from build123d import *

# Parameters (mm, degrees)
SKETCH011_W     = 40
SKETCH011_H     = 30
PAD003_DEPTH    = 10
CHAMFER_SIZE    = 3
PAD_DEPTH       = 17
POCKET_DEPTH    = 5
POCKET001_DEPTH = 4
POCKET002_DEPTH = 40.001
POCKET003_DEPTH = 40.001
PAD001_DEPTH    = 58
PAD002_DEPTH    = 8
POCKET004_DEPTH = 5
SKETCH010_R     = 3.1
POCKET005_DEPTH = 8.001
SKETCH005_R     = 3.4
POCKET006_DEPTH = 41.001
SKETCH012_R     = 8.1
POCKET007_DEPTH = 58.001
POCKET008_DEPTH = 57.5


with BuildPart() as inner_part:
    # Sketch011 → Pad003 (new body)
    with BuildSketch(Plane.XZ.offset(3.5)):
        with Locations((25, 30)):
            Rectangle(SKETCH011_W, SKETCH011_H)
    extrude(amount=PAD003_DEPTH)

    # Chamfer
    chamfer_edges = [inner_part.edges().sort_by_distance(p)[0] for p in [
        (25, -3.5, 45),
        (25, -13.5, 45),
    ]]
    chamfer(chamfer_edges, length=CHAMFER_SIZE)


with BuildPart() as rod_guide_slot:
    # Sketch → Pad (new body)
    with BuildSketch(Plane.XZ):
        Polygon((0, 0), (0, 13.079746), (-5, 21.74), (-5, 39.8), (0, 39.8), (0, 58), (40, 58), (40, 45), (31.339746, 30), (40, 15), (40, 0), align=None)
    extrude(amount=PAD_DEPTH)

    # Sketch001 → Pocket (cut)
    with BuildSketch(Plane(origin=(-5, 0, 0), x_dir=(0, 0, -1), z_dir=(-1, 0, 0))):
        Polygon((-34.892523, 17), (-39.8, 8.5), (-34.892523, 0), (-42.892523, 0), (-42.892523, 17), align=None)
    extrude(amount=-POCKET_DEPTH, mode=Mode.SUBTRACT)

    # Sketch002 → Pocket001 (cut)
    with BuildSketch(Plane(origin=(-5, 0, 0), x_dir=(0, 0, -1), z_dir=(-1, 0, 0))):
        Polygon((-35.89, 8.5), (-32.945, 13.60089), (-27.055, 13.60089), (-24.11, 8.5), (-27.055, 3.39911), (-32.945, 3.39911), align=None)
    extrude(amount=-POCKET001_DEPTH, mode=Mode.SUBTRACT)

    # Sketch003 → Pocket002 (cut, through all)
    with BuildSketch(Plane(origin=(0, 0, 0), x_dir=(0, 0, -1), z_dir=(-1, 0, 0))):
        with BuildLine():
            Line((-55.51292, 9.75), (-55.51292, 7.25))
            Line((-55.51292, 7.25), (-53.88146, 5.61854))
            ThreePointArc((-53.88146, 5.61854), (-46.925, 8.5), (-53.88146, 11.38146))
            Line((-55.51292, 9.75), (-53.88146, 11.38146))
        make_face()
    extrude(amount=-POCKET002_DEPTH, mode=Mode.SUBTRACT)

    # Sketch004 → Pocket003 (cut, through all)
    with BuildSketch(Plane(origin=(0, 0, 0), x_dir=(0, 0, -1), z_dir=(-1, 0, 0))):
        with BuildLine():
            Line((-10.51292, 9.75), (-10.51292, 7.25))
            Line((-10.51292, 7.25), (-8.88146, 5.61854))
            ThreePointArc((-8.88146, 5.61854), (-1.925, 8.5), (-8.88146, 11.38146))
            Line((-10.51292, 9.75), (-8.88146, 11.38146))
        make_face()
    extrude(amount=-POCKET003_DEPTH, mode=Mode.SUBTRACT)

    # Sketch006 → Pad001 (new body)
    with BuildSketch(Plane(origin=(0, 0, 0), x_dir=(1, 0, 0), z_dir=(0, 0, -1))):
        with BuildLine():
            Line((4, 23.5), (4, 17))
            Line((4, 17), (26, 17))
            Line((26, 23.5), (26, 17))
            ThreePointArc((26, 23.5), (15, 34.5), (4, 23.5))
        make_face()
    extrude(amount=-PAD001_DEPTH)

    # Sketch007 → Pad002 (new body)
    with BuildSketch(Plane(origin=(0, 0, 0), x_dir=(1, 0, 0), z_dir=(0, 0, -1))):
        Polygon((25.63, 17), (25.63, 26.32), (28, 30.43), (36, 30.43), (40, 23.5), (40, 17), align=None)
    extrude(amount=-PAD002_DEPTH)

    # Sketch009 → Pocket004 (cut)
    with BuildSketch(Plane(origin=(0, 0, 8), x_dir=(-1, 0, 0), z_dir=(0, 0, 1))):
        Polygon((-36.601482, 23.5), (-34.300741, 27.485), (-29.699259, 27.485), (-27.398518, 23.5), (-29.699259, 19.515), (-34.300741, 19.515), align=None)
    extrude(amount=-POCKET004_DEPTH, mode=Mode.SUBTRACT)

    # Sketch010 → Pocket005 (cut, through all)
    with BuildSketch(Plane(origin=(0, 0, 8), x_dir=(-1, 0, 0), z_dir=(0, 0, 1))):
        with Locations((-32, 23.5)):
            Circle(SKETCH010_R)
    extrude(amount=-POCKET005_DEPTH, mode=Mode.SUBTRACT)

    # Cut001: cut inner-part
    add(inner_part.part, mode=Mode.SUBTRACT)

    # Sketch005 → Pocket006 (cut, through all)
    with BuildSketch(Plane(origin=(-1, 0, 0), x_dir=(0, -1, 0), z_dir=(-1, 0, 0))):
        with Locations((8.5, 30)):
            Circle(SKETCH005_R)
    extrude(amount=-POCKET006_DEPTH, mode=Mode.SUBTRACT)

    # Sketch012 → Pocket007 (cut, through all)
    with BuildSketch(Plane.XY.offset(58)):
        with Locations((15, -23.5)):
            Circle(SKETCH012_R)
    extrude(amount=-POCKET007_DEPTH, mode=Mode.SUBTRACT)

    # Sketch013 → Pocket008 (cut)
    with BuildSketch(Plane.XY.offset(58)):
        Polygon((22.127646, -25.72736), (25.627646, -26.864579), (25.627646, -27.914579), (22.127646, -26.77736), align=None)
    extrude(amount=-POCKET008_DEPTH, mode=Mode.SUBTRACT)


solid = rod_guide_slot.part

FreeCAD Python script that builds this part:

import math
import FreeCAD as App
import Part
import Sketcher
Q = App.Units.Quantity


def edges_at(feature, points):
    """Names of the edges that pass closest to the given points."""
    edges = feature.Shape.Edges
    near = lambda p: min(range(len(edges)), key=lambda i: edges[i].distToShape(Part.Vertex(*p))[0])
    return sorted({f"Edge{near(p) + 1}" for p in points})


def add_polygon(sketch, points):
    """Adds a closed chain of lines whose ends are joined by coincident constraints."""
    first, n = sketch.GeometryCount, len(points)
    for a, b in zip(points, points[1:] + points[:1]):
        sketch.addGeometry(Part.LineSegment(App.Vector(*a, 0), App.Vector(*b, 0)), False)
    for i in range(n):
        sketch.addConstraint(Sketcher.Constraint("Coincident", first + i, 2, first + (i + 1) % n, 1))

doc = App.newDocument("Part")
params = doc.addObject("Spreadsheet::Sheet", "Params")
for row, (alias, value) in enumerate([
    ("sketch1_width", "40 mm"),
    ("sketch1_height", "30 mm"),
    ("pad1_length", "10 mm"),
    ("chamfer_size", "3 mm"),
    ("sketch2_width", "40 mm"),
    ("sketch2_width2", "5 mm"),
    ("sketch2_height", "15 mm"),
    ("sketch2_height2", "13 mm"),
    ("sketch2_height3", "18.2 mm"),
    ("pad2_length", "17 mm"),
    ("sketch3_width", "17 mm"),
    ("sketch3_height", "8 mm"),
    ("pocket1_length", "5 mm"),
    ("sketch4_height", "5.89 mm"),
    ("sketch4_length", "5.89 mm"),
    ("pocket2_length", "4 mm"),
    ("sketch5_width", "2.5 mm"),
    ("sketch6_width", "2.5 mm"),
    ("sketch7_radius", "11 mm"),
    ("sketch7_height", "6.5 mm"),
    ("pad3_length", "58 mm"),
    ("sketch8_width", "8 mm"),
    ("sketch8_height", "6.5 mm"),
    ("sketch8_width2", "14.37 mm"),
    ("sketch8_height2", "9.32 mm"),
    ("pad4_length", "8 mm"),
    ("pocket5_length", "5 mm"),
    ("sketch10_diameter", "6.2 mm"),
    ("sketch11_diameter", "6.8 mm"),
    ("sketch12_diameter", "16.2 mm"),
    ("sketch13_height", "1.05 mm"),
    ("pocket9_length", "57.5 mm"),
], start=1):
    params.set(f"A{row}", alias)
    params.set(f"B{row}", "=" + value)
    params.setAlias(f"B{row}", alias)

body = doc.addObject("PartDesign::Body", "Body")

# Sketch on XZ plane
sketch1 = body.newObject("Sketcher::SketchObject", "Sketch")
sketch1.AttachmentSupport = (doc.getObject("XZ_Plane"), [""])
sketch1.MapMode = "FlatFace"
sketch1.AttachmentOffset = App.Placement(App.Vector(0, 0, 3.5), App.Rotation())
add_polygon(sketch1, [(5, 45), (5, 15), (45, 15), (45, 45)])  # lines 0-3
sketch1.addConstraint(Sketcher.Constraint("Vertical", 0))
sketch1.addConstraint(Sketcher.Constraint("Horizontal", 1))
sketch1.addConstraint(Sketcher.Constraint("Vertical", 2))
sketch1.addConstraint(Sketcher.Constraint("Horizontal", 3))
sketch1.addConstraint(Sketcher.Constraint("DistanceX", 1, 1, 1, 2, Q("40 mm")))
sketch1.addConstraint(Sketcher.Constraint("DistanceY", 0, 2, 0, 1, Q("30 mm")))
sketch1.addConstraint(Sketcher.Constraint("DistanceX", -1, 1, 0, 2, Q("5 mm")))
sketch1.addConstraint(Sketcher.Constraint("DistanceY", -1, 1, 0, 2, Q("15 mm")))
sketch1.setExpression("Constraints[8]", "Params.sketch1_width")
sketch1.setExpression("Constraints[9]", "Params.sketch1_height")
pad1 = body.newObject("PartDesign::Pad", "Pad")
pad1.Profile = sketch1
pad1.setExpression("Length", "Params.pad1_length")
doc.recompute()

chamfer = body.newObject("PartDesign::Chamfer", "Chamfer")
chamfer.Base = (pad1, edges_at(pad1, [(25, -3.5, 45), (25, -13.5, 45)]))
chamfer.setExpression("Size", "Params.chamfer_size")
body2 = doc.addObject("PartDesign::Body", "Body001")

# Sketch on XZ plane
sketch2 = body2.newObject("Sketcher::SketchObject", "Sketch001")
sketch2.AttachmentSupport = (doc.getObject("XZ_Plane001"), [""])
sketch2.MapMode = "FlatFace"
add_polygon(sketch2, [(0, 13), (0, 0), (40, 0), (40, 15), (31, 30), (40, 45), (40, 58), (0, 58), (0, 40), (-5, 40), (-5, 22)])  # lines 0-10
sketch2.addConstraint(Sketcher.Constraint("Vertical", 0))
sketch2.addConstraint(Sketcher.Constraint("Horizontal", 1))
sketch2.addConstraint(Sketcher.Constraint("Vertical", 2))
sketch2.addConstraint(Sketcher.Constraint("Vertical", 5))
sketch2.addConstraint(Sketcher.Constraint("Horizontal", 6))
sketch2.addConstraint(Sketcher.Constraint("Vertical", 7))
sketch2.addConstraint(Sketcher.Constraint("Horizontal", 8))
sketch2.addConstraint(Sketcher.Constraint("Vertical", 9))
sketch2.addConstraint(Sketcher.Constraint("Coincident", 0, 2, -1, 1))
sketch2.addConstraint(Sketcher.Constraint("PointOnObject", 6, 2, -2))
sketch2.addConstraint(Sketcher.Constraint("Parallel", 3, 10))
sketch2.addConstraint(Sketcher.Constraint("Vertical", 2, 2, 4, 2))
sketch2.addConstraint(Sketcher.Constraint("Equal", 3, 4))
sketch2.addConstraint(Sketcher.Constraint("DistanceX", 1, 1, 1, 2, Q("40 mm")))
sketch2.addConstraint(Sketcher.Constraint("DistanceX", 8, 2, 8, 1, Q("5 mm")))
sketch2.addConstraint(Sketcher.Constraint("DistanceY", 2, 1, 2, 2, Q("15 mm")))
sketch2.addConstraint(Sketcher.Constraint("DistanceY", 5, 1, 5, 2, Q("13 mm")))
sketch2.addConstraint(Sketcher.Constraint("Angle", 3, Q("120 deg")))
sketch2.addConstraint(Sketcher.Constraint("DistanceY", 7, 2, 7, 1, Q("18.2 mm")))
sketch2.addConstraint(Sketcher.Constraint("DistanceY", -1, 1, 3, 2, Q("30 mm")))
sketch2.addConstraint(Sketcher.Constraint("DistanceY", 9, 2, 9, 1, Q("18.06 mm")))
sketch2.setExpression("Constraints[24]", "Params.sketch2_width")
sketch2.setExpression("Constraints[25]", "Params.sketch2_width2")
sketch2.setExpression("Constraints[26]", "Params.sketch2_height")
sketch2.setExpression("Constraints[27]", "Params.sketch2_height2")
sketch2.setExpression("Constraints[29]", "Params.sketch2_height3")
pad2 = body2.newObject("PartDesign::Pad", "Pad001")
pad2.Profile = sketch2
pad2.setExpression("Length", "Params.pad2_length")

# Sketch on YZ plane
sketch3 = body2.newObject("Sketcher::SketchObject", "Sketch002")
sketch3.AttachmentSupport = (doc.getObject("YZ_Plane001"), [""])
sketch3.MapMode = "FlatFace"
sketch3.AttachmentOffset = App.Placement(App.Vector(0, 0, -5), App.Rotation())
add_polygon(sketch3, [(-8, 40), (-17, 35), (-17, 43), (0, 43), (0, 35)])  # lines 0-4
sketch3.addConstraint(Sketcher.Constraint("Vertical", 1))
sketch3.addConstraint(Sketcher.Constraint("Horizontal", 2))
sketch3.addConstraint(Sketcher.Constraint("Vertical", 3))
sketch3.addConstraint(Sketcher.Constraint("PointOnObject", 2, 2, -2))
sketch3.addConstraint(Sketcher.Constraint("Horizontal", 0, 2, 3, 2))
sketch3.addConstraint(Sketcher.Constraint("Equal", 0, 4))
sketch3.addConstraint(Sketcher.Constraint("DistanceX", 2, 1, 2, 2, Q("17 mm")))
sketch3.addConstraint(Sketcher.Constraint("DistanceY", 1, 1, 1, 2, Q("8 mm")))
sketch3.addConstraint(Sketcher.Constraint("Angle", 0, Q("-150.000001 deg")))
sketch3.addConstraint(Sketcher.Constraint("DistanceY", -1, 1, 4, 2, Q("39.8 mm")))
sketch3.setExpression("Constraints[11]", "Params.sketch3_width")
sketch3.setExpression("Constraints[12]", "Params.sketch3_height")
pocket1 = body2.newObject("PartDesign::Pocket", "Pocket")
pocket1.Profile = sketch3
pocket1.setExpression("Length", "Params.pocket1_length")
pocket1.Reversed = True

# Sketch on YZ plane
sketch4 = body2.newObject("Sketcher::SketchObject", "Sketch003")
sketch4.AttachmentSupport = (doc.getObject("YZ_Plane001"), [""])
sketch4.MapMode = "FlatFace"
sketch4.AttachmentOffset = App.Placement(App.Vector(0, 0, -5), App.Rotation())
add_polygon(sketch4, [(-14, 33), (-8, 36), (-3, 33), (-3, 27), (-8, 24), (-14, 27)])  # lines 0-5
sketch4.addConstraint(Sketcher.Constraint("Vertical", 2))
sketch4.addConstraint(Sketcher.Constraint("Vertical", 5))
sketch4.addConstraint(Sketcher.Constraint("Parallel", 0, 3))
sketch4.addConstraint(Sketcher.Constraint("Parallel", 1, 4))
sketch4.addConstraint(Sketcher.Constraint("Horizontal", 2, 2, 4, 2))
sketch4.addConstraint(Sketcher.Constraint("Horizontal", 1, 2, 5, 2))
sketch4.addConstraint(Sketcher.Constraint("Vertical", 0, 2, 3, 2))
sketch4.addConstraint(Sketcher.Constraint("Angle", 0, Q("29.999998 deg")))
sketch4.addConstraint(Sketcher.Constraint("DistanceY", 2, 2, 2, 1, Q("5.89 mm")))
sketch4.addConstraint(Sketcher.Constraint("DistanceX", 0, 2, -1, 1, Q("8.5 mm")))
sketch4.addConstraint(Sketcher.Constraint("Distance", 0, Q("5.89 mm")))
sketch4.addConstraint(Sketcher.Constraint("DistanceY", -1, 1, 0, 2, Q("35.89 mm")))
sketch4.setExpression("Constraints[14]", "Params.sketch4_height")
sketch4.setExpression("Constraints[16]", "Params.sketch4_length")
pocket2 = body2.newObject("PartDesign::Pocket", "Pocket001")
pocket2.Profile = sketch4
pocket2.setExpression("Length", "Params.pocket2_length")
pocket2.Reversed = True

# Sketch on YZ plane
sketch5 = body2.newObject("Sketcher::SketchObject", "Sketch004")
sketch5.AttachmentSupport = (doc.getObject("YZ_Plane001"), [""])
sketch5.MapMode = "FlatFace"
sketch5.addGeometry(Part.LineSegment(App.Vector(-9.8, 55.5, 0), App.Vector(-7.2, 55.5, 0)), False)
sketch5.addGeometry(Part.LineSegment(App.Vector(-7.2, 55.5, 0), App.Vector(-5.6, 53.9, 0)), False)
sketch5.addGeometry(Part.ArcOfCircle(Part.Circle(App.Vector(-8.5, 51, 0), App.Vector(0, 0, 1), 4.1), math.radians(135), math.radians(405)), False)
sketch5.addGeometry(Part.LineSegment(App.Vector(-11.4, 53.9, 0), App.Vector(-9.8, 55.5, 0)), False)
sketch5.addConstraint(Sketcher.Constraint("Coincident", 0, 2, 1, 1))
sketch5.addConstraint(Sketcher.Constraint("Tangent", 1, 2, 2, 2))
sketch5.addConstraint(Sketcher.Constraint("Tangent", 2, 1, 3, 1))
sketch5.addConstraint(Sketcher.Constraint("Coincident", 3, 2, 0, 1))
sketch5.addConstraint(Sketcher.Constraint("Horizontal", 0))
sketch5.addConstraint(Sketcher.Constraint("Perpendicular", 1, 3))
sketch5.addConstraint(Sketcher.Constraint("Horizontal", 1, 2, 2, 1))
sketch5.addConstraint(Sketcher.Constraint("DistanceX", 0, 1, 0, 2, Q("2.5 mm")))
sketch5.addConstraint(Sketcher.Constraint("DistanceY", -1, 1, 2, 3, Q("51 mm")))
sketch5.addConstraint(Sketcher.Constraint("Radius", 2, Q("4.075 mm")))
sketch5.addConstraint(Sketcher.Constraint("DistanceX", 2, 3, -1, 1, Q("8.5 mm")))
sketch5.setExpression("Constraints[7]", "Params.sketch5_width")
pocket3 = body2.newObject("PartDesign::Pocket", "Pocket002")
pocket3.Profile = sketch5
pocket3.Type = "ThroughAll"
pocket3.Reversed = True

# Sketch on YZ plane
sketch6 = body2.newObject("Sketcher::SketchObject", "Sketch005")
sketch6.AttachmentSupport = (doc.getObject("YZ_Plane001"), [""])
sketch6.MapMode = "FlatFace"
sketch6.addGeometry(Part.LineSegment(App.Vector(-9.8, 10.5, 0), App.Vector(-7.2, 10.5, 0)), False)
sketch6.addGeometry(Part.LineSegment(App.Vector(-7.2, 10.5, 0), App.Vector(-5.6, 8.9, 0)), False)
sketch6.addGeometry(Part.ArcOfCircle(Part.Circle(App.Vector(-8.5, 6, 0), App.Vector(0, 0, 1), 4.1), math.radians(135), math.radians(405)), False)
sketch6.addGeometry(Part.LineSegment(App.Vector(-11.4, 8.9, 0), App.Vector(-9.8, 10.5, 0)), False)
sketch6.addConstraint(Sketcher.Constraint("Coincident", 0, 2, 1, 1))
sketch6.addConstraint(Sketcher.Constraint("Tangent", 1, 2, 2, 2))
sketch6.addConstraint(Sketcher.Constraint("Tangent", 2, 1, 3, 1))
sketch6.addConstraint(Sketcher.Constraint("Coincident", 3, 2, 0, 1))
sketch6.addConstraint(Sketcher.Constraint("Horizontal", 0))
sketch6.addConstraint(Sketcher.Constraint("Perpendicular", 1, 3))
sketch6.addConstraint(Sketcher.Constraint("Horizontal", 1, 2, 2, 1))
sketch6.addConstraint(Sketcher.Constraint("DistanceX", 0, 1, 0, 2, Q("2.5 mm")))
sketch6.addConstraint(Sketcher.Constraint("DistanceY", -1, 1, 2, 3, Q("6 mm")))
sketch6.addConstraint(Sketcher.Constraint("Radius", 2, Q("4.075 mm")))
sketch6.addConstraint(Sketcher.Constraint("DistanceX", 2, 3, -1, 1, Q("8.5 mm")))
sketch6.setExpression("Constraints[7]", "Params.sketch6_width")
pocket4 = body2.newObject("PartDesign::Pocket", "Pocket003")
pocket4.Profile = sketch6
pocket4.Type = "ThroughAll"
pocket4.Reversed = True

# Sketch on XY plane
sketch7 = body2.newObject("Sketcher::SketchObject", "Sketch006")
sketch7.AttachmentSupport = (doc.getObject("XY_Plane001"), [""])
sketch7.MapMode = "FlatFace"
sketch7.addGeometry(Part.LineSegment(App.Vector(4, -24, 0), App.Vector(4, -17, 0)), False)
sketch7.addGeometry(Part.LineSegment(App.Vector(4, -17, 0), App.Vector(26, -17, 0)), False)
sketch7.addGeometry(Part.LineSegment(App.Vector(26, -17, 0), App.Vector(26, -24, 0)), False)
sketch7.addGeometry(Part.ArcOfCircle(Part.Circle(App.Vector(15, -24, 0), App.Vector(0, 0, 1), 11), math.radians(180), math.radians(360)), False)
sketch7.addConstraint(Sketcher.Constraint("Coincident", 0, 2, 1, 1))
sketch7.addConstraint(Sketcher.Constraint("Coincident", 1, 2, 2, 1))
sketch7.addConstraint(Sketcher.Constraint("Tangent", 2, 2, 3, 2))
sketch7.addConstraint(Sketcher.Constraint("Tangent", 3, 1, 0, 1))
sketch7.addConstraint(Sketcher.Constraint("Vertical", 0))
sketch7.addConstraint(Sketcher.Constraint("Horizontal", 1))
sketch7.addConstraint(Sketcher.Constraint("Vertical", 2))
sketch7.addConstraint(Sketcher.Constraint("Radius", 3, Q("11 mm")))
sketch7.addConstraint(Sketcher.Constraint("DistanceY", 0, 1, 0, 2, Q("6.5 mm")))
sketch7.addConstraint(Sketcher.Constraint("DistanceX", -1, 1, 3, 3, Q("15 mm")))
sketch7.addConstraint(Sketcher.Constraint("DistanceY", 0, 2, -1, 1, Q("17 mm")))
sketch7.setExpression("Constraints[7]", "Params.sketch7_radius")
sketch7.setExpression("Constraints[8]", "Params.sketch7_height")
pad3 = body2.newObject("PartDesign::Pad", "Pad002")
pad3.Profile = sketch7
pad3.setExpression("Length", "Params.pad3_length")

# Sketch on XY plane
sketch8 = body2.newObject("Sketcher::SketchObject", "Sketch007")
sketch8.AttachmentSupport = (doc.getObject("XY_Plane001"), [""])
sketch8.MapMode = "FlatFace"
add_polygon(sketch8, [(25.6, -26.3), (25.6, -17), (40, -17), (40, -23.5), (36, -30.4), (28, -30.4)])  # lines 0-5
sketch8.addConstraint(Sketcher.Constraint("Vertical", 0))
sketch8.addConstraint(Sketcher.Constraint("Horizontal", 1))
sketch8.addConstraint(Sketcher.Constraint("Vertical", 2))
sketch8.addConstraint(Sketcher.Constraint("Horizontal", 4))
sketch8.addConstraint(Sketcher.Constraint("DistanceX", 4, 2, 4, 1, Q("8 mm")))
sketch8.addConstraint(Sketcher.Constraint("DistanceY", 2, 2, 2, 1, Q("6.5 mm")))
sketch8.addConstraint(Sketcher.Constraint("DistanceY", 0, 2, -1, 1, Q("17 mm")))
sketch8.addConstraint(Sketcher.Constraint("DistanceX", -1, 1, 1, 2, Q("40 mm")))
sketch8.addConstraint(Sketcher.Constraint("DistanceX", -1, 1, 3, 2, Q("36 mm")))
sketch8.addConstraint(Sketcher.Constraint("DistanceX", 1, 1, 1, 2, Q("14.37 mm")))
sketch8.addConstraint(Sketcher.Constraint("DistanceY", 0, 1, 0, 2, Q("9.32 mm")))
sketch8.addConstraint(Sketcher.Constraint("DistanceY", 3, 2, -1, 1, Q("30.43 mm")))
sketch8.setExpression("Constraints[10]", "Params.sketch8_width")
sketch8.setExpression("Constraints[11]", "Params.sketch8_height")
sketch8.setExpression("Constraints[15]", "Params.sketch8_width2")
sketch8.setExpression("Constraints[16]", "Params.sketch8_height2")
pad4 = body2.newObject("PartDesign::Pad", "Pad003")
pad4.Profile = sketch8
pad4.setExpression("Length", "Params.pad4_length")

# Sketch on XY plane
sketch9 = body2.newObject("Sketcher::SketchObject", "Sketch008")
sketch9.AttachmentSupport = (doc.getObject("XY_Plane001"), [""])
sketch9.MapMode = "FlatFace"
sketch9.AttachmentOffset = App.Placement(App.Vector(0, 0, 8), App.Rotation())
add_polygon(sketch9, [(34.3, -27.5), (36.6, -23.5), (34.3, -19.5), (29.7, -19.5), (27.4, -23.5), (29.7, -27.5)])  # lines 0-5
sketch9.addConstraint(Sketcher.Constraint("Horizontal", 2))
sketch9.addConstraint(Sketcher.Constraint("Horizontal", 5))
sketch9.addConstraint(Sketcher.Constraint("Parallel", 0, 3))
sketch9.addConstraint(Sketcher.Constraint("Parallel", 1, 4))
sketch9.addConstraint(Sketcher.Constraint("Horizontal", 0, 2, 3, 2))
sketch9.addConstraint(Sketcher.Constraint("Vertical", 2, 2, 4, 2))
sketch9.addConstraint(Sketcher.Constraint("Vertical", 1, 2, 5, 2))
sketch9.addConstraint(Sketcher.Constraint("Angle", 0, Q("59.999998 deg")))
sketch9.addConstraint(Sketcher.Constraint("DistanceY", 0, 2, -1, 1, Q("23.5 mm")))
sketch9.addConstraint(Sketcher.Constraint("DistanceY", 4, 2, 2, 2, Q("7.97 mm")))
sketch9.addConstraint(Sketcher.Constraint("DistanceX", 2, 2, 2, 1, Q("4.601482 mm")))
sketch9.addConstraint(Sketcher.Constraint("DistanceX", -1, 1, 0, 2, Q("36.601482 mm")))
pocket5 = body2.newObject("PartDesign::Pocket", "Pocket004")
pocket5.Profile = sketch9
pocket5.setExpression("Length", "Params.pocket5_length")

# Sketch on XY plane
sketch10 = body2.newObject("Sketcher::SketchObject", "Sketch009")
sketch10.AttachmentSupport = (doc.getObject("XY_Plane001"), [""])
sketch10.MapMode = "FlatFace"
sketch10.AttachmentOffset = App.Placement(App.Vector(0, 0, 8), App.Rotation())
sketch10.addGeometry(Part.Circle(App.Vector(32, -23.5, 0), App.Vector(0, 0, 1), 3.1), False)
sketch10.addConstraint(Sketcher.Constraint("Diameter", 0, Q("6.2 mm")))
sketch10.addConstraint(Sketcher.Constraint("DistanceX", -1, 1, 0, 3, Q("32 mm")))
sketch10.addConstraint(Sketcher.Constraint("DistanceY", 0, 3, -1, 1, Q("23.5 mm")))
sketch10.setExpression("Constraints[0]", "Params.sketch10_diameter")
pocket6 = body2.newObject("PartDesign::Pocket", "Pocket005")
pocket6.Profile = sketch10
pocket6.Type = "ThroughAll"
doc.recompute()

boolean = body2.newObject("PartDesign::Boolean", "Boolean")
boolean.Type = "Cut"
boolean.addObjects([body])

# Sketch on YZ plane
sketch11 = body2.newObject("Sketcher::SketchObject", "Sketch010")
sketch11.AttachmentSupport = (doc.getObject("YZ_Plane001"), [""])
sketch11.MapMode = "FlatFace"
sketch11.AttachmentOffset = App.Placement(App.Vector(0, 0, -1), App.Rotation())
sketch11.addGeometry(Part.Circle(App.Vector(-8.5, 30, 0), App.Vector(0, 0, 1), 3.4), False)
sketch11.addConstraint(Sketcher.Constraint("Diameter", 0, Q("6.8 mm")))
sketch11.addConstraint(Sketcher.Constraint("DistanceY", -1, 1, 0, 3, Q("30 mm")))
sketch11.addConstraint(Sketcher.Constraint("DistanceX", 0, 3, -1, 1, Q("8.5 mm")))
sketch11.setExpression("Constraints[0]", "Params.sketch11_diameter")
pocket7 = body2.newObject("PartDesign::Pocket", "Pocket006")
pocket7.Profile = sketch11
pocket7.Type = "ThroughAll"
pocket7.Reversed = True

# Sketch on XY plane
sketch12 = body2.newObject("Sketcher::SketchObject", "Sketch011")
sketch12.AttachmentSupport = (doc.getObject("XY_Plane001"), [""])
sketch12.MapMode = "FlatFace"
sketch12.AttachmentOffset = App.Placement(App.Vector(0, 0, 58), App.Rotation())
sketch12.addGeometry(Part.Circle(App.Vector(15, -24, 0), App.Vector(0, 0, 1), 8), False)
sketch12.addConstraint(Sketcher.Constraint("Diameter", 0, Q("16.2 mm")))
sketch12.addConstraint(Sketcher.Constraint("DistanceX", -1, 1, 0, 3, Q("15 mm")))
sketch12.addConstraint(Sketcher.Constraint("DistanceY", 0, 3, -1, 1, Q("23.5 mm")))
sketch12.setExpression("Constraints[0]", "Params.sketch12_diameter")
pocket8 = body2.newObject("PartDesign::Pocket", "Pocket007")
pocket8.Profile = sketch12
pocket8.Type = "ThroughAll"

# Sketch on XY plane
sketch13 = body2.newObject("Sketcher::SketchObject", "Sketch012")
sketch13.AttachmentSupport = (doc.getObject("XY_Plane001"), [""])
sketch13.MapMode = "FlatFace"
sketch13.AttachmentOffset = App.Placement(App.Vector(0, 0, 58), App.Rotation())
add_polygon(sketch13, [(25.6, -26.9), (22.1, -25.7), (22.1, -26.8), (25.6, -27.9)])  # lines 0-3
sketch13.addConstraint(Sketcher.Constraint("Vertical", 1))
sketch13.addConstraint(Sketcher.Constraint("Vertical", 3))
sketch13.addConstraint(Sketcher.Constraint("Parallel", 0, 2))
sketch13.addConstraint(Sketcher.Constraint("Angle", 0, Q("161.999999 deg")))
sketch13.addConstraint(Sketcher.Constraint("DistanceY", 1, 2, 1, 1, Q("1.05 mm")))
sketch13.addConstraint(Sketcher.Constraint("DistanceX", 1, 2, 2, 2, Q("3.5 mm")))
sketch13.addConstraint(Sketcher.Constraint("DistanceY", 0, 2, -1, 1, Q("25.72736 mm")))
sketch13.addConstraint(Sketcher.Constraint("DistanceX", -1, 1, 0, 2, Q("22.127646 mm")))
sketch13.setExpression("Constraints[8]", "Params.sketch13_height")
pocket9 = body2.newObject("PartDesign::Pocket", "Pocket008")
pocket9.Profile = sketch13
pocket9.setExpression("Length", "Params.pocket9_length")

doc.recompute()
